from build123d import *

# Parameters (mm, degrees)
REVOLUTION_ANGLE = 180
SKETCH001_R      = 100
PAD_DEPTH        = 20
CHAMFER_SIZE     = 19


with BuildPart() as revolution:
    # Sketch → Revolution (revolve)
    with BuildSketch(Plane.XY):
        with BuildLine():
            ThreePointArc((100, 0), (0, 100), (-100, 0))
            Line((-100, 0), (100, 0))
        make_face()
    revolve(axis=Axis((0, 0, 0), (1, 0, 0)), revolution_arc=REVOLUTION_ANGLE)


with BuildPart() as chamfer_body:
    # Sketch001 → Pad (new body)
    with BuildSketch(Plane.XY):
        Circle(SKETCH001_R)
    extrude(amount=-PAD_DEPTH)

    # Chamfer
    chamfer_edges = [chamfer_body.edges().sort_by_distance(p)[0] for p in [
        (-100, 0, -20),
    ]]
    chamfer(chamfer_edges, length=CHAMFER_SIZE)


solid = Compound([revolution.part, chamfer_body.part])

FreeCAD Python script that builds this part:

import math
import FreeCAD as App
import Part
import Sketcher
Q = App.Units.Quantity


def edges_at(feature, points):
    """Names of the edges that pass closest to the given points."""
    edges = feature.Shape.Edges
    near = lambda p: min(range(len(edges)), key=lambda i: edges[i].distToShape(Part.Vertex(*p))[0])
    return sorted({f"Edge{near(p) + 1}" for p in points})

doc = App.newDocument("Part")
params = doc.addObject("Spreadsheet::Sheet", "Params")
for row, (alias, value) in enumerate([
    ("sketch1_radius", "100 mm"),
    ("revolution_angle", "180 deg"),
    ("sketch2_diameter", "200 mm"),
    ("pad1_length", "20 mm"),
    ("chamfer_size", "19 mm"),
], start=1):
    params.set(f"A{row}", alias)
    params.set(f"B{row}", "=" + value)
    params.setAlias(f"B{row}", alias)

body = doc.addObject("PartDesign::Body", "Body")

# Sketch on XY plane
sketch1 = body.newObject("Sketcher::SketchObject", "Sketch")
sketch1.AttachmentSupport = (doc.getObject("XY_Plane"), [""])
sketch1.MapMode = "FlatFace"
sketch1.addGeometry(Part.ArcOfCircle(Part.Circle(App.Vector(0, 0, 0), App.Vector(0, 0, 1), 100), math.radians(0), math.radians(180)), False)
sketch1.addGeometry(Part.LineSegment(App.Vector(-100, 0, 0), App.Vector(100, 0, 0)), False)
sketch1.addConstraint(Sketcher.Constraint("Coincident", 0, 1, 1, 2))
sketch1.addConstraint(Sketcher.Constraint("Coincident", 1, 1, 0, 2))
sketch1.addConstraint(Sketcher.Constraint("Horizontal", 1))
sketch1.addConstraint(Sketcher.Constraint("Coincident", 0, 3, -1, 1))
sketch1.addConstraint(Sketcher.Constraint("PointOnObject", 0, 1, -1))
sketch1.addConstraint(Sketcher.Constraint("Radius", 0, Q("100 mm")))
sketch1.setExpression("Constraints[5]", "Params.sketch1_radius")
revolution = body.newObject("PartDesign::Revolution", "Revolution")
revolution.Profile = sketch1
revolution.ReferenceAxis = (sketch1, ["H_Axis"])
revolution.setExpression("Angle", "Params.revolution_angle")
body2 = doc.addObject("PartDesign::Body", "Body001")

# Sketch on XY plane
sketch2 = body2.newObject("Sketcher::SketchObject", "Sketch001")
sketch2.AttachmentSupport = (doc.getObject("XY_Plane001"), [""])
sketch2.MapMode = "FlatFace"
sketch2.addGeometry(Part.Circle(App.Vector(0, 0, 0), App.Vector(0, 0, 1), 100), False)
sketch2.addConstraint(Sketcher.Constraint("Coincident", 0, 3, -1, 1))
sketch2.addConstraint(Sketcher.Constraint("Diameter", 0, Q("200 mm")))
sketch2.setExpression("Constraints[1]", "Params.sketch2_diameter")
pad1 = body2.newObject("PartDesign::Pad", "Pad")
pad1.Profile = sketch2
pad1.setExpression("Length", "Params.pad1_length")
pad1.Reversed = True
doc.recompute()

chamfer = body2.newObject("PartDesign::Chamfer", "Chamfer")
chamfer.Base = (pad1, edges_at(pad1, [(-100, 0, -20)]))
chamfer.setExpression("Size", "Params.chamfer_size")

doc.recompute()
